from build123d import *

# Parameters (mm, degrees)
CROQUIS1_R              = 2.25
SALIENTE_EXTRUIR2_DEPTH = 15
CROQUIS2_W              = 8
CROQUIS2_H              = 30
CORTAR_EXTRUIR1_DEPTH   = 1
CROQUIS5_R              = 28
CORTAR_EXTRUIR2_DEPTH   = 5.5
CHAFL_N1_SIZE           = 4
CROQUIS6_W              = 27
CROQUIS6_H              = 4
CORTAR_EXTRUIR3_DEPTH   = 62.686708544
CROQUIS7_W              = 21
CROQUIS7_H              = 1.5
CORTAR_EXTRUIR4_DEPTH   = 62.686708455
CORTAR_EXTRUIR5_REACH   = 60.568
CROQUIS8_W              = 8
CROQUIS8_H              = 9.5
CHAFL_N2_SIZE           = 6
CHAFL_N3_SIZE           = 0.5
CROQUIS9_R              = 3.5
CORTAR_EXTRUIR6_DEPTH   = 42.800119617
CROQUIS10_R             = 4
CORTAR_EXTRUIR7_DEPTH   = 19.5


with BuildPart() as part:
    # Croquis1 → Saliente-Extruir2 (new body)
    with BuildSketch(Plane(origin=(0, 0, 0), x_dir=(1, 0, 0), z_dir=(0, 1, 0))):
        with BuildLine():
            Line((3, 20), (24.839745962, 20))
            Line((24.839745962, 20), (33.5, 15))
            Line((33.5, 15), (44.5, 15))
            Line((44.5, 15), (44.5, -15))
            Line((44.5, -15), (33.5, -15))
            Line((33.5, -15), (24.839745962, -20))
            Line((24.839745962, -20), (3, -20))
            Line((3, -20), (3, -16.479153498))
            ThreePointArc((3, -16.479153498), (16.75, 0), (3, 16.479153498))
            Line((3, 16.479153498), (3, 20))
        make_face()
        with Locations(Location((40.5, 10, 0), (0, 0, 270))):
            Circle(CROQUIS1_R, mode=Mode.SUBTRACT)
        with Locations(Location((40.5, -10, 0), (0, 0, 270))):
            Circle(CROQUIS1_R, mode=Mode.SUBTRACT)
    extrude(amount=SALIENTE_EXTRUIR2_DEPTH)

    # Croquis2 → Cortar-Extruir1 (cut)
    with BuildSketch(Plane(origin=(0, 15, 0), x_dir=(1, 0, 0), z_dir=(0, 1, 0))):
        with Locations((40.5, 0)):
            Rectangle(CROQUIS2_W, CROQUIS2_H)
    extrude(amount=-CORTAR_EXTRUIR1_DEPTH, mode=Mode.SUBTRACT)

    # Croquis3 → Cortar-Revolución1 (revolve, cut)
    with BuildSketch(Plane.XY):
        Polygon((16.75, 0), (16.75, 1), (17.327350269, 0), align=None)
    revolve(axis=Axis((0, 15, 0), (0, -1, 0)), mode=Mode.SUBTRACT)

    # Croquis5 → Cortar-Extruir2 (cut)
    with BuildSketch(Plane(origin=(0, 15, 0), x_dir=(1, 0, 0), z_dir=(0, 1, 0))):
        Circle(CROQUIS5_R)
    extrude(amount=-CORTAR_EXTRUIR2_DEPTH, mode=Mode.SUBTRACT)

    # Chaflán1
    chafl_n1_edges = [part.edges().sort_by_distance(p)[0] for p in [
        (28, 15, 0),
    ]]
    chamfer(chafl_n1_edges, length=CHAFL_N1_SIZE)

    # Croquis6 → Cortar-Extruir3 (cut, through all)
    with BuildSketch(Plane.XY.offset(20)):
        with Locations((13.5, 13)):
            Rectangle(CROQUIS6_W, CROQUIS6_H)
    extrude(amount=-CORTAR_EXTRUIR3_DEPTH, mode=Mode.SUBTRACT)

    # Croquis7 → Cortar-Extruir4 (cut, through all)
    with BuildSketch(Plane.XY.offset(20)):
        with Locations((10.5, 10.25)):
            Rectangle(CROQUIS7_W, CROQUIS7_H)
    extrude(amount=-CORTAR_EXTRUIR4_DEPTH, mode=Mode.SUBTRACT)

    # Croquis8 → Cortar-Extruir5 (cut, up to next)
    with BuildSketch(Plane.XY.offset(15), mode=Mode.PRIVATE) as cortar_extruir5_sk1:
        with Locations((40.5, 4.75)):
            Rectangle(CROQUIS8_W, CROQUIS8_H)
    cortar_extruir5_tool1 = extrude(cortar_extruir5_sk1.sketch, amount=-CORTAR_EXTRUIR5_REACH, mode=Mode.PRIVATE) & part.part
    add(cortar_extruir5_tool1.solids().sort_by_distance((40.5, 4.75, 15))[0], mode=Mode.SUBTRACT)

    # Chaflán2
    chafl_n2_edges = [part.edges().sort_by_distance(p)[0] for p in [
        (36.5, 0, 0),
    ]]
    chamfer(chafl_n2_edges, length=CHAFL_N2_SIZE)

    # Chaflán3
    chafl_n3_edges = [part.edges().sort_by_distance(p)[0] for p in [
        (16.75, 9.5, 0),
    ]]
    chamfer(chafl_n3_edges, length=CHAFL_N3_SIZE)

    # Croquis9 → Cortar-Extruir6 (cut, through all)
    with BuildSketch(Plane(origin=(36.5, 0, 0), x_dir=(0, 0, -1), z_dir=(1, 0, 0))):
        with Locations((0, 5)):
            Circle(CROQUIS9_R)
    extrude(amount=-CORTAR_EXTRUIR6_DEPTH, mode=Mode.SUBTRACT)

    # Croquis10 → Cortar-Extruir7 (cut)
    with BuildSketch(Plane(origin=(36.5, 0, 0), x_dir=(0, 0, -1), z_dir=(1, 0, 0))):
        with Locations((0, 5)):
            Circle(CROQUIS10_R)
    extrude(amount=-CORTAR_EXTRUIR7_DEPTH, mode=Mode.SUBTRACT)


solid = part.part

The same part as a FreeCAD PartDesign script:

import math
import FreeCAD as App
import Part
import Sketcher
Q = App.Units.Quantity


def edges_at(feature, points):
    """Names of the edges that pass closest to the given points."""
    edges = feature.Shape.Edges
    near = lambda p: min(range(len(edges)), key=lambda i: edges[i].distToShape(Part.Vertex(*p))[0])
    return sorted({f"Edge{near(p) + 1}" for p in points})


def add_polygon(sketch, points):
    """Adds a closed chain of lines whose ends are joined by coincident constraints."""
    first, n = sketch.GeometryCount, len(points)
    for a, b in zip(points, points[1:] + points[:1]):
        sketch.addGeometry(Part.LineSegment(App.Vector(*a, 0), App.Vector(*b, 0)), False)
    for i in range(n):
        sketch.addConstraint(Sketcher.Constraint("Coincident", first + i, 2, first + (i + 1) % n, 1))

doc = App.newDocument("Part")
params = doc.addObject("Spreadsheet::Sheet", "Params")
for row, (alias, value) in enumerate([
    ("sketch1_diameter", "4.5 mm"),
    ("sketch1_width", "11 mm"),
    ("sketch1_height", "30 mm"),
    ("sketch1_radius", "16.75 mm"),
    ("sketch1_length", "10 mm"),
    ("pad1_length", "15 mm"),
    ("sketch2_width", "8 mm"),
    ("sketch2_height", "30 mm"),
    ("pocket1_length", "1 mm"),
    ("sketch3_height", "1 mm"),
    ("groove_angle", "360 deg"),
    ("sketch4_diameter", "56 mm"),
    ("pocket2_length", "5.5 mm"),
    ("chamfer_size", "4 mm"),
    ("sketch5_width", "27 mm"),
    ("sketch5_height", "4 mm"),
    ("sketch6_width", "21 mm"),
    ("sketch6_height", "1.5 mm"),
    ("sketch7_width", "8 mm"),
    ("sketch7_height", "9.5 mm"),
    ("chamfer2_size", "6 mm"),
    ("chamfer3_size", "0.5 mm"),
    ("sketch8_diameter", "7 mm"),
    ("sketch9_diameter", "8 mm"),
    ("pocket7_length", "19.5 mm"),
], start=1):
    params.set(f"A{row}", alias)
    params.set(f"B{row}", "=" + value)
    params.setAlias(f"B{row}", alias)

body = doc.addObject("PartDesign::Body", "Body")

# Sketch on XZ plane
sketch1 = body.newObject("Sketcher::SketchObject", "Sketch")
sketch1.AttachmentSupport = (doc.getObject("XZ_Plane"), [""])
sketch1.MapMode = "FlatFace"
sketch1.addGeometry([
    Part.LineSegment(App.Vector(24.839746, -20, 0), App.Vector(3, -20, 0)),  # 0
    Part.LineSegment(App.Vector(3, -20, 0), App.Vector(3, -16.479153, 0)),  # 1
    Part.ArcOfCircle(Part.Circle(App.Vector(0, 0, 0), App.Vector(0, 0, 1), 16.75), math.radians(-79.682397), math.radians(79.682397)),  # 2
    Part.LineSegment(App.Vector(3, 16.479153, 0), App.Vector(3, 20, 0)),  # 3
    Part.LineSegment(App.Vector(3, 20, 0), App.Vector(24.839746, 20, 0)),  # 4
    Part.LineSegment(App.Vector(24.839746, 20, 0), App.Vector(33.5, 15, 0)),  # 5
    Part.LineSegment(App.Vector(33.5, 15, 0), App.Vector(44.5, 15, 0)),  # 6
    Part.LineSegment(App.Vector(44.5, 15, 0), App.Vector(44.5, -15, 0)),  # 7
    Part.LineSegment(App.Vector(44.5, -15, 0), App.Vector(33.5, -15, 0)),  # 8
    Part.LineSegment(App.Vector(33.5, -15, 0), App.Vector(24.839746, -20, 0)),  # 9
    Part.Circle(App.Vector(40.5, 10, 0), App.Vector(0, 0, 1), 2.25),  # 10
    Part.Circle(App.Vector(40.5, -10, 0), App.Vector(0, 0, 1), 2.25),  # 11
], False)
sketch1.addConstraint([
    Sketcher.Constraint("Coincident", 0, 2, 1, 1),
    Sketcher.Constraint("Coincident", 1, 2, 2, 1),
    Sketcher.Constraint("Coincident", 2, 2, 3, 1),
    Sketcher.Constraint("Coincident", 3, 2, 4, 1),
    Sketcher.Constraint("Coincident", 4, 2, 5, 1),
    Sketcher.Constraint("Coincident", 5, 2, 6, 1),
    Sketcher.Constraint("Coincident", 6, 2, 7, 1),
    Sketcher.Constraint("Coincident", 7, 2, 8, 1),
    Sketcher.Constraint("Coincident", 8, 2, 9, 1),
    Sketcher.Constraint("Coincident", 9, 2, 0, 1),
    Sketcher.Constraint("Horizontal", 0),
    Sketcher.Constraint("Vertical", 1),
    Sketcher.Constraint("Vertical", 3),
    Sketcher.Constraint("Horizontal", 4),
    Sketcher.Constraint("Horizontal", 6),
    Sketcher.Constraint("Vertical", 7),
    Sketcher.Constraint("Horizontal", 8),
    Sketcher.Constraint("Coincident", 2, 3, -1, 1),
    Sketcher.Constraint("Equal", 10, 11),
    Sketcher.Constraint("Symmetric", 10, 3, 11, 3, -1),
    Sketcher.Constraint("Symmetric", 0, 2, 3, 2, -1),
    Sketcher.Constraint("Symmetric", 5, 2, 8, 2, -1),
    Sketcher.Constraint("Vertical", 4, 2, 9, 2),
    Sketcher.Constraint("Diameter", 10, 4.5),
    Sketcher.Constraint("DistanceX", 6, 1, 6, 2, 11.0),
    Sketcher.Constraint("DistanceY", 7, 2, 7, 1, 30.0),
    Sketcher.Constraint("Angle", 5, Q("-30 deg")),
    Sketcher.Constraint("Radius", 2, 16.75),
    Sketcher.Constraint("Distance", 5, 10.0),
    Sketcher.Constraint("DistanceY", -1, 1, 10, 3, 10.0),
    Sketcher.Constraint("DistanceX", -1, 1, 0, 2, 3.0),
    Sketcher.Constraint("DistanceX", 5, 2, 10, 3, 7.0),
    Sketcher.Constraint("DistanceX", -1, 1, 10, 3, 40.5),
])
sketch1.setExpression("Constraints[23]", "Params.sketch1_diameter")
sketch1.setExpression("Constraints[24]", "Params.sketch1_width")
sketch1.setExpression("Constraints[25]", "Params.sketch1_height")
sketch1.setExpression("Constraints[27]", "Params.sketch1_radius")
sketch1.setExpression("Constraints[28]", "Params.sketch1_length")
pad1 = body.newObject("PartDesign::Pad", "Pad")
pad1.Profile = sketch1
pad1.setExpression("Length", "Params.pad1_length")
pad1.Reversed = True

# Sketch on XZ plane
sketch2 = body.newObject("Sketcher::SketchObject", "Sketch001")
sketch2.AttachmentSupport = (doc.getObject("XZ_Plane"), [""])
sketch2.MapMode = "FlatFace"
sketch2.AttachmentOffset = App.Placement(App.Vector(0, 0, -15), App.Rotation())
add_polygon(sketch2, [(36.5, -15), (36.5, 15), (44.5, 15), (44.5, -15)])  # lines 0-3
sketch2.addConstraint([
    Sketcher.Constraint("Vertical", 0),
    Sketcher.Constraint("Horizontal", 1),
    Sketcher.Constraint("Vertical", 2),
    Sketcher.Constraint("Horizontal", 3),
    Sketcher.Constraint("DistanceX", 1, 1, 1, 2, 8.0),
    Sketcher.Constraint("DistanceY", 0, 1, 0, 2, 30.0),
    Sketcher.Constraint("DistanceY", -1, 1, 0, 2, 15.0),
    Sketcher.Constraint("DistanceX", -1, 1, 0, 2, 36.5),
])
sketch2.setExpression("Constraints[8]", "Params.sketch2_width")
sketch2.setExpression("Constraints[9]", "Params.sketch2_height")
pocket1 = body.newObject("PartDesign::Pocket", "Pocket")
pocket1.Profile = sketch2
pocket1.setExpression("Length", "Params.pocket1_length")
pocket1.Reversed = True

# Sketch on XY plane
sketch3 = body.newObject("Sketcher::SketchObject", "Sketch002")
sketch3.AttachmentSupport = (doc.getObject("XY_Plane"), [""])
sketch3.MapMode = "FlatFace"
add_polygon(sketch3, [(16.75, 1), (16.75, 0), (17.32735, 0)])  # lines 0-2
sketch3.addConstraint([
    Sketcher.Constraint("Vertical", 0),
    Sketcher.Constraint("Horizontal", 1),
    Sketcher.Constraint("PointOnObject", 0, 2, -1),
    Sketcher.Constraint("DistanceY", 0, 2, 0, 1, 1.0),
    Sketcher.Constraint("Angle", 2, Q("120 deg")),
    Sketcher.Constraint("DistanceX", -1, 1, 0, 2, 16.75),
])
sketch3.setExpression("Constraints[6]", "Params.sketch3_height")
groove = body.newObject("PartDesign::Groove", "Groove")
groove.Profile = sketch3
groove.ReferenceAxis = (sketch3, ["V_Axis"])
groove.setExpression("Angle", "Params.groove_angle")

# Sketch on XZ plane
sketch4 = body.newObject("Sketcher::SketchObject", "Sketch003")
sketch4.AttachmentSupport = (doc.getObject("XZ_Plane"), [""])
sketch4.MapMode = "FlatFace"
sketch4.AttachmentOffset = App.Placement(App.Vector(0, 0, -15), App.Rotation())
sketch4.addGeometry(Part.Circle(App.Vector(0, 0, 0), App.Vector(0, 0, 1), 28), False)
sketch4.addConstraint([
    Sketcher.Constraint("Coincident", 0, 3, -1, 1),
    Sketcher.Constraint("Diameter", 0, 56.0),
])
sketch4.setExpression("Constraints[1]", "Params.sketch4_diameter")
pocket2 = body.newObject("PartDesign::Pocket", "Pocket001")
pocket2.Profile = sketch4
pocket2.setExpression("Length", "Params.pocket2_length")
pocket2.Reversed = True
doc.recompute()

chamfer = body.newObject("PartDesign::Chamfer", "Chamfer")
chamfer.Base = (pocket2, edges_at(pocket2, [(28, 15, 0)]))
chamfer.setExpression("Size", "Params.chamfer_size")

# Sketch on XY plane
sketch5 = body.newObject("Sketcher::SketchObject", "Sketch004")
sketch5.AttachmentSupport = (doc.getObject("XY_Plane"), [""])
sketch5.MapMode = "FlatFace"
sketch5.AttachmentOffset = App.Placement(App.Vector(0, 0, 20), App.Rotation())
add_polygon(sketch5, [(0, 15), (0, 11), (27, 11), (27, 15)])  # lines 0-3
sketch5.addConstraint([
    Sketcher.Constraint("Vertical", 0),
    Sketcher.Constraint("Horizontal", 1),
    Sketcher.Constraint("Vertical", 2),
    Sketcher.Constraint("Horizontal", 3),
    Sketcher.Constraint("PointOnObject", 0, 2, -2),
    Sketcher.Constraint("DistanceX", 1, 1, 1, 2, 27.0),
    Sketcher.Constraint("DistanceY", 0, 2, 0, 1, 4.0),
    Sketcher.Constraint("DistanceY", -1, 1, 0, 2, 11.0),
])
sketch5.setExpression("Constraints[9]", "Params.sketch5_width")
sketch5.setExpression("Constraints[10]", "Params.sketch5_height")
pocket3 = body.newObject("PartDesign::Pocket", "Pocket002")
pocket3.Profile = sketch5
pocket3.Type = "ThroughAll"

# Sketch on XY plane
sketch6 = body.newObject("Sketcher::SketchObject", "Sketch005")
sketch6.AttachmentSupport = (doc.getObject("XY_Plane"), [""])
sketch6.MapMode = "FlatFace"
sketch6.AttachmentOffset = App.Placement(App.Vector(0, 0, 20), App.Rotation())
add_polygon(sketch6, [(0, 11), (0, 9.5), (21, 9.5), (21, 11)])  # lines 0-3
sketch6.addConstraint([
    Sketcher.Constraint("Vertical", 0),
    Sketcher.Constraint("Horizontal", 1),
    Sketcher.Constraint("Vertical", 2),
    Sketcher.Constraint("Horizontal", 3),
    Sketcher.Constraint("PointOnObject", 0, 2, -2),
    Sketcher.Constraint("DistanceX", 1, 1, 1, 2, 21.0),
    Sketcher.Constraint("DistanceY", 0, 2, 0, 1, 1.5),
    Sketcher.Constraint("DistanceY", -1, 1, 2, 2, 11.0),
])
sketch6.setExpression("Constraints[9]", "Params.sketch6_width")
sketch6.setExpression("Constraints[10]", "Params.sketch6_height")
pocket4 = body.newObject("PartDesign::Pocket", "Pocket003")
pocket4.Profile = sketch6
pocket4.Type = "ThroughAll"

# Sketch on XY plane
sketch7 = body.newObject("Sketcher::SketchObject", "Sketch006")
sketch7.AttachmentSupport = (doc.getObject("XY_Plane"), [""])
sketch7.MapMode = "FlatFace"
sketch7.AttachmentOffset = App.Placement(App.Vector(0, 0, 15), App.Rotation())
add_polygon(sketch7, [(36.5, 9.5), (36.5, 0), (44.5, 0), (44.5, 9.5)])  # lines 0-3
sketch7.addConstraint([
    Sketcher.Constraint("Vertical", 0),
    Sketcher.Constraint("Horizontal", 1),
    Sketcher.Constraint("Vertical", 2),
    Sketcher.Constraint("Horizontal", 3),
    Sketcher.Constraint("PointOnObject", 0, 2, -1),
    Sketcher.Constraint("DistanceX", 1, 1, 1, 2, 8.0),
    Sketcher.Constraint("DistanceY", 0, 2, 0, 1, 9.5),
    Sketcher.Constraint("DistanceX", -1, 1, 0, 2, 36.5),
])
sketch7.setExpression("Constraints[9]", "Params.sketch7_width")
sketch7.setExpression("Constraints[10]", "Params.sketch7_height")
pocket5 = body.newObject("PartDesign::Pocket", "Pocket004")
pocket5.Profile = sketch7
pocket5.Type = "UpToFirst"
doc.recompute()

chamfer2 = body.newObject("PartDesign::Chamfer", "Chamfer001")
chamfer2.Base = (pocket5, edges_at(pocket5, [(36.5, 0, 0)]))
chamfer2.setExpression("Size", "Params.chamfer2_size")
doc.recompute()

chamfer3 = body.newObject("PartDesign::Chamfer", "Chamfer002")
chamfer3.Base = (chamfer2, edges_at(chamfer2, [(16.75, 9.5, 0)]))
chamfer3.setExpression("Size", "Params.chamfer3_size")

# Sketch on YZ plane
sketch8 = body.newObject("Sketcher::SketchObject", "Sketch007")
sketch8.AttachmentSupport = (doc.getObject("YZ_Plane"), [""])
sketch8.MapMode = "FlatFace"
sketch8.AttachmentOffset = App.Placement(App.Vector(0, 0, 36.5), App.Rotation())
sketch8.addGeometry(Part.Circle(App.Vector(5, 0, 0), App.Vector(0, 0, 1), 3.5), False)
sketch8.addConstraint([
    Sketcher.Constraint("PointOnObject", 0, 3, -1),
    Sketcher.Constraint("Diameter", 0, 7.0),
    Sketcher.Constraint("DistanceX", -1, 1, 0, 3, 5.0),
])
sketch8.setExpression("Constraints[1]", "Params.sketch8_diameter")
pocket6 = body.newObject("PartDesign::Pocket", "Pocket005")
pocket6.Profile = sketch8
pocket6.Type = "ThroughAll"

# Sketch on YZ plane
sketch9 = body.newObject("Sketcher::SketchObject", "Sketch008")
sketch9.AttachmentSupport = (doc.getObject("YZ_Plane"), [""])
sketch9.MapMode = "FlatFace"
sketch9.AttachmentOffset = App.Placement(App.Vector(0, 0, 36.5), App.Rotation())
sketch9.addGeometry(Part.Circle(App.Vector(5, 0, 0), App.Vector(0, 0, 1), 4), False)
sketch9.addConstraint([
    Sketcher.Constraint("PointOnObject", 0, 3, -1),
    Sketcher.Constraint("Diameter", 0, 8.0),
    Sketcher.Constraint("DistanceX", -1, 1, 0, 3, 5.0),
])
sketch9.setExpression("Constraints[1]", "Params.sketch9_diameter")
pocket7 = body.newObject("PartDesign::Pocket", "Pocket006")
pocket7.Profile = sketch9
pocket7.setExpression("Length", "Params.pocket7_length")

doc.recompute()
